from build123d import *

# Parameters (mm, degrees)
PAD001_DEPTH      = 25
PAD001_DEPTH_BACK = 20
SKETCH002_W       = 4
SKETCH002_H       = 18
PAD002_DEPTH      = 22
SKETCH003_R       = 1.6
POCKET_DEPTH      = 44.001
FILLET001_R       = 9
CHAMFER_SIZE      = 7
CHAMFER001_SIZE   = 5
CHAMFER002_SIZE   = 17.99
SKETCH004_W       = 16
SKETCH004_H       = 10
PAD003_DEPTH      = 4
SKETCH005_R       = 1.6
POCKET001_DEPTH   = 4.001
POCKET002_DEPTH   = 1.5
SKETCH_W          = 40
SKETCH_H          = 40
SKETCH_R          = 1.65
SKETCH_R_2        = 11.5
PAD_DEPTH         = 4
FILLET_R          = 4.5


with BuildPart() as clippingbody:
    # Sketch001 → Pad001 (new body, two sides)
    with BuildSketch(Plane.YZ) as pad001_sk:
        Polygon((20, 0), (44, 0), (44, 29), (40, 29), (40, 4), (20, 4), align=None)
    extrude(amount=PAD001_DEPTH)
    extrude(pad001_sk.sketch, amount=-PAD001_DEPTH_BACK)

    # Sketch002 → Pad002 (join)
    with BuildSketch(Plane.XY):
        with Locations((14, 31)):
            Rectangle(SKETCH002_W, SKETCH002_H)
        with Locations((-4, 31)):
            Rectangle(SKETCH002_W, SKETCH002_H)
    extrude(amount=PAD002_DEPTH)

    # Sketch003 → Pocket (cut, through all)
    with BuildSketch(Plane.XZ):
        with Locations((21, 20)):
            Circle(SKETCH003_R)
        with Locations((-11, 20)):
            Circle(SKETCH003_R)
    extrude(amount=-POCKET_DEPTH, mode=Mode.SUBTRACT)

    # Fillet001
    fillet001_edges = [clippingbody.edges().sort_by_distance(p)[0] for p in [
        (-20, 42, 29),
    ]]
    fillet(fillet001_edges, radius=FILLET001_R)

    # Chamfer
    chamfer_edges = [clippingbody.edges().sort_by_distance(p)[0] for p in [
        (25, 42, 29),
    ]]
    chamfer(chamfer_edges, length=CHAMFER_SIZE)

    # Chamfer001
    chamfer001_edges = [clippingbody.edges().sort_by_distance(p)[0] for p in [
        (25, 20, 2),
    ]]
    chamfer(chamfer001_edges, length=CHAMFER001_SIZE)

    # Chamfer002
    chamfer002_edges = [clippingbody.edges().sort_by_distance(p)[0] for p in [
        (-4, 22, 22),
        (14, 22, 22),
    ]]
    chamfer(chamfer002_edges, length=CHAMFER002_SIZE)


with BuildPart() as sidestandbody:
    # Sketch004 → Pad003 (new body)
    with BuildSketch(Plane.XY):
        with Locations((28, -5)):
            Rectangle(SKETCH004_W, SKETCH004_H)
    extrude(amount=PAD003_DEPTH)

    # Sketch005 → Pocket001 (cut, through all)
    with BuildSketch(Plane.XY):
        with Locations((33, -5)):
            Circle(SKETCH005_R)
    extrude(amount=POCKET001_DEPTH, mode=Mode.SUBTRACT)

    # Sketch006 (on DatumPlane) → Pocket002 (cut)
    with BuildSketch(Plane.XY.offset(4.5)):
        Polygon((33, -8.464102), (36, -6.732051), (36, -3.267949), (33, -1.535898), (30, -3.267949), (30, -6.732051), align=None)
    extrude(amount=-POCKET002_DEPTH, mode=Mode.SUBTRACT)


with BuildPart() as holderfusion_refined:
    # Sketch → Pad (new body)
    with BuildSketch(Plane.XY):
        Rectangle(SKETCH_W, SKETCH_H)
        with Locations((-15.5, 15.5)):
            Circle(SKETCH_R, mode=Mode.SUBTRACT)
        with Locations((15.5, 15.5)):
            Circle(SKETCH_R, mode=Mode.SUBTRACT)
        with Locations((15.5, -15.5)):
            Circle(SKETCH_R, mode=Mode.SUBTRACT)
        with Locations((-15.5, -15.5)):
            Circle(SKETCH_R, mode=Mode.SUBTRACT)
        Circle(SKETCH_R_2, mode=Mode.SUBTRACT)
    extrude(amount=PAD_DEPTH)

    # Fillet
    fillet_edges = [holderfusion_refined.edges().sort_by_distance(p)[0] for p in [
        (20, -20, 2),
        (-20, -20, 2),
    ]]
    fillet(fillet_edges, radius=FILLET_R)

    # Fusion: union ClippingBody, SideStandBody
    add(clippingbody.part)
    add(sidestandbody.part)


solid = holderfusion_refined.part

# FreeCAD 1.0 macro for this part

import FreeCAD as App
import Part
import Sketcher
Q = App.Units.Quantity


def edges_at(feature, points):
    """Names of the edges that pass closest to the given points."""
    edges = feature.Shape.Edges
    near = lambda p: min(range(len(edges)), key=lambda i: edges[i].distToShape(Part.Vertex(*p))[0])
    return sorted({f"Edge{near(p) + 1}" for p in points})

doc = App.newDocument("Part")
params = doc.addObject("Spreadsheet::Sheet", "Params")
for row, (alias, value) in enumerate([
    ("sketch1_width", "24 mm"),
    ("sketch1_width2", "4 mm"),
    ("sketch1_height", "29 mm"),
    ("pad1_length", "25 mm"),
    ("pad1_length2", "20 mm"),
    ("sketch2_width", "4 mm"),
    ("sketch2_height", "18 mm"),
    ("pad2_length", "22 mm"),
    ("sketch3_diameter", "3.2 mm"),
    ("fillet_radius", "9 mm"),
    ("chamfer_size", "7 mm"),
    ("chamfer2_size", "5 mm"),
    ("chamfer3_size", "17.99 mm"),
    ("sketch4_width", "16 mm"),
    ("sketch4_height", "10 mm"),
    ("pad3_length", "4 mm"),
    ("sketch5_diameter", "3.2 mm"),
    ("pocket3_length", "1.5 mm"),
    ("sketch7_diameter", "23 mm"),
    ("sketch7_diameter2", "3.3 mm"),
    ("sketch7_width", "40 mm"),
    ("pad4_length", "4 mm"),
    ("fillet2_radius", "4.5 mm"),
], start=1):
    params.set(f"A{row}", alias)
    params.set(f"B{row}", "=" + value)
    params.setAlias(f"B{row}", alias)

body = doc.addObject("PartDesign::Body", "Body")

sketch1 = body.newObject("Sketcher::SketchObject", "Sketch")
sketch1.AttachmentSupport = (doc.getObject("YZ_Plane"), [""])
sketch1.MapMode = "FlatFace"
sketch1.addGeometry([
    Part.LineSegment(App.Vector(20, 0, 0), App.Vector(44, 0, 0)),
    Part.LineSegment(App.Vector(44, 0, 0), App.Vector(44, 29, 0)),
    Part.LineSegment(App.Vector(44, 29, 0), App.Vector(40, 29, 0)),
    Part.LineSegment(App.Vector(40, 29, 0), App.Vector(40, 4, 0)),
    Part.LineSegment(App.Vector(40, 4, 0), App.Vector(20, 4, 0)),
    Part.LineSegment(App.Vector(20, 4, 0), App.Vector(20, 0, 0)),
], False)
sketch1.addConstraint([
    Sketcher.Constraint("Coincident", 0, 2, 1, 1),
    Sketcher.Constraint("Coincident", 1, 2, 2, 1),
    Sketcher.Constraint("Coincident", 2, 2, 3, 1),
    Sketcher.Constraint("Coincident", 3, 2, 4, 1),
    Sketcher.Constraint("Coincident", 4, 2, 5, 1),
    Sketcher.Constraint("Coincident", 5, 2, 0, 1),
    Sketcher.Constraint("Horizontal", 0),
    Sketcher.Constraint("Vertical", 1),
    Sketcher.Constraint("Horizontal", 2),
    Sketcher.Constraint("Vertical", 3),
    Sketcher.Constraint("Horizontal", 4),
    Sketcher.Constraint("Vertical", 5),
    Sketcher.Constraint("PointOnObject", 0, 2, -1),
    Sketcher.Constraint("Equal", 2, 5),
    Sketcher.Constraint("DistanceX", 0, 1, 0, 2, Q("24 mm")),
    Sketcher.Constraint("DistanceX", 2, 2, 2, 1, Q("4 mm")),
    Sketcher.Constraint("DistanceY", 1, 1, 1, 2, Q("29 mm")),
    Sketcher.Constraint("DistanceX", -1, 1, 0, 2, Q("44 mm")),
])
sketch1.setExpression("Constraints[14]", "Params.sketch1_width")
sketch1.setExpression("Constraints[15]", "Params.sketch1_width2")
sketch1.setExpression("Constraints[16]", "Params.sketch1_height")
pad1 = body.newObject("PartDesign::Pad", "Pad")
pad1.Profile = sketch1
pad1.Type = "TwoLengths"
pad1.setExpression("Length", "Params.pad1_length")
pad1.setExpression("Length2", "Params.pad1_length2")

sketch2 = body.newObject("Sketcher::SketchObject", "Sketch001")
sketch2.AttachmentSupport = (doc.getObject("XY_Plane"), [""])
sketch2.MapMode = "FlatFace"
sketch2.addGeometry([
    Part.LineSegment(App.Vector(12, 40, 0), App.Vector(12, 22, 0)),
    Part.LineSegment(App.Vector(12, 22, 0), App.Vector(16, 22, 0)),
    Part.LineSegment(App.Vector(16, 22, 0), App.Vector(16, 40, 0)),
    Part.LineSegment(App.Vector(16, 40, 0), App.Vector(12, 40, 0)),
    Part.LineSegment(App.Vector(-6, 40, 0), App.Vector(-6, 22, 0)),
    Part.LineSegment(App.Vector(-6, 22, 0), App.Vector(-2, 22, 0)),
    Part.LineSegment(App.Vector(-2, 22, 0), App.Vector(-2, 40, 0)),
    Part.LineSegment(App.Vector(-2, 40, 0), App.Vector(-6, 40, 0)),
], False)
sketch2.addConstraint([
    Sketcher.Constraint("Coincident", 0, 2, 1, 1),
    Sketcher.Constraint("Coincident", 1, 2, 2, 1),
    Sketcher.Constraint("Coincident", 2, 2, 3, 1),
    Sketcher.Constraint("Coincident", 3, 2, 0, 1),
    Sketcher.Constraint("Coincident", 4, 2, 5, 1),
    Sketcher.Constraint("Coincident", 5, 2, 6, 1),
    Sketcher.Constraint("Coincident", 6, 2, 7, 1),
    Sketcher.Constraint("Coincident", 7, 2, 4, 1),
    Sketcher.Constraint("Vertical", 0),
    Sketcher.Constraint("Horizontal", 1),
    Sketcher.Constraint("Vertical", 2),
    Sketcher.Constraint("Horizontal", 3),
    Sketcher.Constraint("Vertical", 4),
    Sketcher.Constraint("Horizontal", 5),
    Sketcher.Constraint("Vertical", 6),
    Sketcher.Constraint("Horizontal", 7),
    Sketcher.Constraint("Horizontal", 1, 2, 4, 2),
    Sketcher.Constraint("Horizontal", 3, 2, 6, 2),
    Sketcher.Constraint("Equal", 3, 5),
    Sketcher.Constraint("DistanceX", 1, 1, 1, 2, Q("4 mm")),
    Sketcher.Constraint("DistanceY", 0, 2, 0, 1, Q("18 mm")),
    Sketcher.Constraint("DistanceX", -1, 1, 0, 2, Q("12 mm")),
    Sketcher.Constraint("DistanceY", -1, 1, 0, 2, Q("22 mm")),
    Sketcher.Constraint("DistanceX", 4, 2, -1, 1, Q("6 mm")),
])
sketch2.setExpression("Constraints[19]", "Params.sketch2_width")
sketch2.setExpression("Constraints[20]", "Params.sketch2_height")
pad2 = body.newObject("PartDesign::Pad", "Pad001")
pad2.Profile = sketch2
pad2.setExpression("Length", "Params.pad2_length")

sketch3 = body.newObject("Sketcher::SketchObject", "Sketch002")
sketch3.AttachmentSupport = (doc.getObject("XZ_Plane"), [""])
sketch3.MapMode = "FlatFace"
sketch3.addGeometry([
    Part.Circle(App.Vector(21, 20, 0), App.Vector(0, 0, 1), 1.6),
    Part.Circle(App.Vector(-11, 20, 0), App.Vector(0, 0, 1), 1.6),
], False)
sketch3.addConstraint([
    Sketcher.Constraint("Equal", 0, 1),
    Sketcher.Constraint("Horizontal", 0, 3, 1, 3),
    Sketcher.Constraint("Diameter", 0, Q("3.2 mm")),
    Sketcher.Constraint("DistanceX", -1, 1, 0, 3, Q("21 mm")),
    Sketcher.Constraint("DistanceY", -1, 1, 0, 3, Q("20 mm")),
    Sketcher.Constraint("DistanceX", 1, 3, -1, 1, Q("11 mm")),
])
sketch3.setExpression("Constraints[2]", "Params.sketch3_diameter")
pocket1 = body.newObject("PartDesign::Pocket", "Pocket")
pocket1.Profile = sketch3
pocket1.Type = "ThroughAll"
doc.recompute()

fillet = body.newObject("PartDesign::Fillet", "Fillet")
fillet.Base = (pocket1, edges_at(pocket1, [(-20, 42, 29)]))
fillet.setExpression("Radius", "Params.fillet_radius")
doc.recompute()

chamfer = body.newObject("PartDesign::Chamfer", "Chamfer")
chamfer.Base = (fillet, edges_at(fillet, [(25, 42, 29)]))
chamfer.setExpression("Size", "Params.chamfer_size")
doc.recompute()

chamfer2 = body.newObject("PartDesign::Chamfer", "Chamfer001")
chamfer2.Base = (chamfer, edges_at(chamfer, [(25, 20, 2)]))
chamfer2.setExpression("Size", "Params.chamfer2_size")
doc.recompute()

chamfer3 = body.newObject("PartDesign::Chamfer", "Chamfer002")
chamfer3.Base = (chamfer2, edges_at(chamfer2, [(-4, 22, 22), (14, 22, 22)]))
chamfer3.setExpression("Size", "Params.chamfer3_size")
body2 = doc.addObject("PartDesign::Body", "Body001")

sketch4 = body2.newObject("Sketcher::SketchObject", "Sketch003")
sketch4.AttachmentSupport = (doc.getObject("XY_Plane001"), [""])
sketch4.MapMode = "FlatFace"
sketch4.addGeometry([
    Part.LineSegment(App.Vector(20, 0, 0), App.Vector(20, -10, 0)),
    Part.LineSegment(App.Vector(20, -10, 0), App.Vector(36, -10, 0)),
    Part.LineSegment(App.Vector(36, -10, 0), App.Vector(36, 0, 0)),
    Part.LineSegment(App.Vector(36, 0, 0), App.Vector(20, 0, 0)),
], False)
sketch4.addConstraint([
    Sketcher.Constraint("Coincident", 0, 2, 1, 1),
    Sketcher.Constraint("Coincident", 1, 2, 2, 1),
    Sketcher.Constraint("Coincident", 2, 2, 3, 1),
    Sketcher.Constraint("Coincident", 3, 2, 0, 1),
    Sketcher.Constraint("Vertical", 0),
    Sketcher.Constraint("Horizontal", 1),
    Sketcher.Constraint("Vertical", 2),
    Sketcher.Constraint("Horizontal", 3),
    Sketcher.Constraint("PointOnObject", 2, 2, -1),
    Sketcher.Constraint("DistanceX", 1, 1, 1, 2, Q("16 mm")),
    Sketcher.Constraint("DistanceY", 0, 2, 0, 1, Q("10 mm")),
    Sketcher.Constraint("DistanceX", -1, 1, 0, 2, Q("20 mm")),
])
sketch4.setExpression("Constraints[9]", "Params.sketch4_width")
sketch4.setExpression("Constraints[10]", "Params.sketch4_height")
pad3 = body2.newObject("PartDesign::Pad", "Pad002")
pad3.Profile = sketch4
pad3.setExpression("Length", "Params.pad3_length")

sketch5 = body2.newObject("Sketcher::SketchObject", "Sketch004")
sketch5.AttachmentSupport = (doc.getObject("XY_Plane001"), [""])
sketch5.MapMode = "FlatFace"
sketch5.addGeometry(Part.Circle(App.Vector(33, -5, 0), App.Vector(0, 0, 1), 1.6), False)
sketch5.addConstraint([
    Sketcher.Constraint("Diameter", 0, Q("3.2 mm")),
    Sketcher.Constraint("DistanceX", -1, 1, 0, 3, Q("33 mm")),
    Sketcher.Constraint("DistanceY", 0, 3, -1, 1, Q("5 mm")),
])
sketch5.setExpression("Constraints[0]", "Params.sketch5_diameter")
pocket2 = body2.newObject("PartDesign::Pocket", "Pocket001")
pocket2.Profile = sketch5
pocket2.Type = "ThroughAll"
pocket2.Reversed = True

sketch6 = body2.newObject("Sketcher::SketchObject", "Sketch005")
sketch6.AttachmentSupport = (doc.getObject("XY_Plane001"), [""])
sketch6.MapMode = "FlatFace"
sketch6.AttachmentOffset = App.Placement(App.Vector(0, 0, 4.5), App.Rotation())
sketch6.addGeometry([
    Part.LineSegment(App.Vector(33, -8.5, 0), App.Vector(36, -6.7, 0)),
    Part.LineSegment(App.Vector(36, -6.7, 0), App.Vector(36, -3.3, 0)),
    Part.LineSegment(App.Vector(36, -3.3, 0), App.Vector(33, -1.5, 0)),
    Part.LineSegment(App.Vector(33, -1.5, 0), App.Vector(30, -3.3, 0)),
    Part.LineSegment(App.Vector(30, -3.3, 0), App.Vector(30, -6.7, 0)),
    Part.LineSegment(App.Vector(30, -6.7, 0), App.Vector(33, -8.5, 0)),
], False)
sketch6.addConstraint([
    Sketcher.Constraint("Coincident", 0, 2, 1, 1),
    Sketcher.Constraint("Coincident", 1, 2, 2, 1),
    Sketcher.Constraint("Coincident", 2, 2, 3, 1),
    Sketcher.Constraint("Coincident", 3, 2, 4, 1),
    Sketcher.Constraint("Coincident", 4, 2, 5, 1),
    Sketcher.Constraint("Coincident", 5, 2, 0, 1),
    Sketcher.Constraint("Vertical", 1),
    Sketcher.Constraint("Vertical", 4),
    Sketcher.Constraint("Parallel", 0, 3),
    Sketcher.Constraint("Parallel", 2, 5),
    Sketcher.Constraint("Horizontal", 1, 2, 3, 2),
    Sketcher.Constraint("Horizontal", 0, 2, 4, 2),
    Sketcher.Constraint("Vertical", 2, 2, 5, 2),
    Sketcher.Constraint("Angle", 0, Q("30.000003 deg")),
    Sketcher.Constraint("DistanceX", -1, 1, 0, 2, Q("36 mm")),
    Sketcher.Constraint("DistanceX", -1, 1, 2, 2, Q("33 mm")),
    Sketcher.Constraint("DistanceY", 1, 1, 1, 2, Q("3.464102 mm")),
    Sketcher.Constraint("DistanceY", 0, 2, -1, 1, Q("6.732051 mm")),
])
pocket3 = body2.newObject("PartDesign::Pocket", "Pocket002")
pocket3.Profile = sketch6
pocket3.setExpression("Length", "Params.pocket3_length")
body3 = doc.addObject("PartDesign::Body", "Body002")

sketch7 = body3.newObject("Sketcher::SketchObject", "Sketch006")
sketch7.AttachmentSupport = (doc.getObject("XY_Plane002"), [""])
sketch7.MapMode = "FlatFace"
sketch7.addGeometry([
    Part.LineSegment(App.Vector(-20, 20, 0), App.Vector(-20, -20, 0)),
    Part.LineSegment(App.Vector(-20, -20, 0), App.Vector(20, -20, 0)),
    Part.LineSegment(App.Vector(20, -20, 0), App.Vector(20, 20, 0)),
    Part.LineSegment(App.Vector(20, 20, 0), App.Vector(-20, 20, 0)),
    Part.Circle(App.Vector(-15.5, -15.5, 0), App.Vector(0, 0, 1), 1.6),
    Part.Circle(App.Vector(15.5, -15.5, 0), App.Vector(0, 0, 1), 1.6),
    Part.Circle(App.Vector(-15.5, 15.5, 0), App.Vector(0, 0, 1), 1.6),
    Part.Circle(App.Vector(0, 0, 0), App.Vector(0, 0, 1), 11.5),
    Part.Circle(App.Vector(15.5, 15.5, 0), App.Vector(0, 0, 1), 1.6),
], False)
sketch7.addConstraint([
    Sketcher.Constraint("Coincident", 0, 2, 1, 1),
    Sketcher.Constraint("Coincident", 1, 2, 2, 1),
    Sketcher.Constraint("Coincident", 2, 2, 3, 1),
    Sketcher.Constraint("Coincident", 3, 2, 0, 1),
    Sketcher.Constraint("Vertical", 0),
    Sketcher.Constraint("Horizontal", 1),
    Sketcher.Constraint("Vertical", 2),
    Sketcher.Constraint("Horizontal", 3),
    Sketcher.Constraint("Coincident", 7, 3, -1, 1),
    Sketcher.Constraint("Equal", 4, 5),
    Sketcher.Constraint("Equal", 5, 6),
    Sketcher.Constraint("Equal", 6, 8),
    Sketcher.Constraint("Symmetric", 5, 3, 6, 3, -1, 1),
    Sketcher.Constraint("Symmetric", 4, 3, 8, 3, -1, 1),
    Sketcher.Constraint("Symmetric", 0, 2, 2, 2, -1, 1),
    Sketcher.Constraint("Symmetric", 4, 3, 5, 3, -2),
    Sketcher.Constraint("Equal", 3, 0),
    Sketcher.Constraint("Diameter", 7, Q("23 mm")),
    Sketcher.Constraint("Diameter", 4, Q("3.3 mm")),
    Sketcher.Constraint("DistanceX", 1, 1, 1, 2, Q("40 mm")),
    Sketcher.Constraint("DistanceX", 4, 3, 5, 3, Q("31 mm")),
    Sketcher.Constraint("DistanceY", 4, 3, 6, 3, Q("31 mm")),
])
sketch7.setExpression("Constraints[17]", "Params.sketch7_diameter")
sketch7.setExpression("Constraints[18]", "Params.sketch7_diameter2")
sketch7.setExpression("Constraints[19]", "Params.sketch7_width")
pad4 = body3.newObject("PartDesign::Pad", "Pad003")
pad4.Profile = sketch7
pad4.setExpression("Length", "Params.pad4_length")
doc.recompute()

fillet2 = body3.newObject("PartDesign::Fillet", "Fillet001")
fillet2.Base = (pad4, edges_at(pad4, [(20, -20, 2), (-20, -20, 2)]))
fillet2.setExpression("Radius", "Params.fillet2_radius")
doc.recompute()

boolean = body3.newObject("PartDesign::Boolean", "Boolean")
boolean.Type = "Fuse"
boolean.addObjects([body])
doc.recompute()

boolean2 = body3.newObject("PartDesign::Boolean", "Boolean001")
boolean2.Type = "Fuse"
boolean2.addObjects([body2])

doc.recompute()
